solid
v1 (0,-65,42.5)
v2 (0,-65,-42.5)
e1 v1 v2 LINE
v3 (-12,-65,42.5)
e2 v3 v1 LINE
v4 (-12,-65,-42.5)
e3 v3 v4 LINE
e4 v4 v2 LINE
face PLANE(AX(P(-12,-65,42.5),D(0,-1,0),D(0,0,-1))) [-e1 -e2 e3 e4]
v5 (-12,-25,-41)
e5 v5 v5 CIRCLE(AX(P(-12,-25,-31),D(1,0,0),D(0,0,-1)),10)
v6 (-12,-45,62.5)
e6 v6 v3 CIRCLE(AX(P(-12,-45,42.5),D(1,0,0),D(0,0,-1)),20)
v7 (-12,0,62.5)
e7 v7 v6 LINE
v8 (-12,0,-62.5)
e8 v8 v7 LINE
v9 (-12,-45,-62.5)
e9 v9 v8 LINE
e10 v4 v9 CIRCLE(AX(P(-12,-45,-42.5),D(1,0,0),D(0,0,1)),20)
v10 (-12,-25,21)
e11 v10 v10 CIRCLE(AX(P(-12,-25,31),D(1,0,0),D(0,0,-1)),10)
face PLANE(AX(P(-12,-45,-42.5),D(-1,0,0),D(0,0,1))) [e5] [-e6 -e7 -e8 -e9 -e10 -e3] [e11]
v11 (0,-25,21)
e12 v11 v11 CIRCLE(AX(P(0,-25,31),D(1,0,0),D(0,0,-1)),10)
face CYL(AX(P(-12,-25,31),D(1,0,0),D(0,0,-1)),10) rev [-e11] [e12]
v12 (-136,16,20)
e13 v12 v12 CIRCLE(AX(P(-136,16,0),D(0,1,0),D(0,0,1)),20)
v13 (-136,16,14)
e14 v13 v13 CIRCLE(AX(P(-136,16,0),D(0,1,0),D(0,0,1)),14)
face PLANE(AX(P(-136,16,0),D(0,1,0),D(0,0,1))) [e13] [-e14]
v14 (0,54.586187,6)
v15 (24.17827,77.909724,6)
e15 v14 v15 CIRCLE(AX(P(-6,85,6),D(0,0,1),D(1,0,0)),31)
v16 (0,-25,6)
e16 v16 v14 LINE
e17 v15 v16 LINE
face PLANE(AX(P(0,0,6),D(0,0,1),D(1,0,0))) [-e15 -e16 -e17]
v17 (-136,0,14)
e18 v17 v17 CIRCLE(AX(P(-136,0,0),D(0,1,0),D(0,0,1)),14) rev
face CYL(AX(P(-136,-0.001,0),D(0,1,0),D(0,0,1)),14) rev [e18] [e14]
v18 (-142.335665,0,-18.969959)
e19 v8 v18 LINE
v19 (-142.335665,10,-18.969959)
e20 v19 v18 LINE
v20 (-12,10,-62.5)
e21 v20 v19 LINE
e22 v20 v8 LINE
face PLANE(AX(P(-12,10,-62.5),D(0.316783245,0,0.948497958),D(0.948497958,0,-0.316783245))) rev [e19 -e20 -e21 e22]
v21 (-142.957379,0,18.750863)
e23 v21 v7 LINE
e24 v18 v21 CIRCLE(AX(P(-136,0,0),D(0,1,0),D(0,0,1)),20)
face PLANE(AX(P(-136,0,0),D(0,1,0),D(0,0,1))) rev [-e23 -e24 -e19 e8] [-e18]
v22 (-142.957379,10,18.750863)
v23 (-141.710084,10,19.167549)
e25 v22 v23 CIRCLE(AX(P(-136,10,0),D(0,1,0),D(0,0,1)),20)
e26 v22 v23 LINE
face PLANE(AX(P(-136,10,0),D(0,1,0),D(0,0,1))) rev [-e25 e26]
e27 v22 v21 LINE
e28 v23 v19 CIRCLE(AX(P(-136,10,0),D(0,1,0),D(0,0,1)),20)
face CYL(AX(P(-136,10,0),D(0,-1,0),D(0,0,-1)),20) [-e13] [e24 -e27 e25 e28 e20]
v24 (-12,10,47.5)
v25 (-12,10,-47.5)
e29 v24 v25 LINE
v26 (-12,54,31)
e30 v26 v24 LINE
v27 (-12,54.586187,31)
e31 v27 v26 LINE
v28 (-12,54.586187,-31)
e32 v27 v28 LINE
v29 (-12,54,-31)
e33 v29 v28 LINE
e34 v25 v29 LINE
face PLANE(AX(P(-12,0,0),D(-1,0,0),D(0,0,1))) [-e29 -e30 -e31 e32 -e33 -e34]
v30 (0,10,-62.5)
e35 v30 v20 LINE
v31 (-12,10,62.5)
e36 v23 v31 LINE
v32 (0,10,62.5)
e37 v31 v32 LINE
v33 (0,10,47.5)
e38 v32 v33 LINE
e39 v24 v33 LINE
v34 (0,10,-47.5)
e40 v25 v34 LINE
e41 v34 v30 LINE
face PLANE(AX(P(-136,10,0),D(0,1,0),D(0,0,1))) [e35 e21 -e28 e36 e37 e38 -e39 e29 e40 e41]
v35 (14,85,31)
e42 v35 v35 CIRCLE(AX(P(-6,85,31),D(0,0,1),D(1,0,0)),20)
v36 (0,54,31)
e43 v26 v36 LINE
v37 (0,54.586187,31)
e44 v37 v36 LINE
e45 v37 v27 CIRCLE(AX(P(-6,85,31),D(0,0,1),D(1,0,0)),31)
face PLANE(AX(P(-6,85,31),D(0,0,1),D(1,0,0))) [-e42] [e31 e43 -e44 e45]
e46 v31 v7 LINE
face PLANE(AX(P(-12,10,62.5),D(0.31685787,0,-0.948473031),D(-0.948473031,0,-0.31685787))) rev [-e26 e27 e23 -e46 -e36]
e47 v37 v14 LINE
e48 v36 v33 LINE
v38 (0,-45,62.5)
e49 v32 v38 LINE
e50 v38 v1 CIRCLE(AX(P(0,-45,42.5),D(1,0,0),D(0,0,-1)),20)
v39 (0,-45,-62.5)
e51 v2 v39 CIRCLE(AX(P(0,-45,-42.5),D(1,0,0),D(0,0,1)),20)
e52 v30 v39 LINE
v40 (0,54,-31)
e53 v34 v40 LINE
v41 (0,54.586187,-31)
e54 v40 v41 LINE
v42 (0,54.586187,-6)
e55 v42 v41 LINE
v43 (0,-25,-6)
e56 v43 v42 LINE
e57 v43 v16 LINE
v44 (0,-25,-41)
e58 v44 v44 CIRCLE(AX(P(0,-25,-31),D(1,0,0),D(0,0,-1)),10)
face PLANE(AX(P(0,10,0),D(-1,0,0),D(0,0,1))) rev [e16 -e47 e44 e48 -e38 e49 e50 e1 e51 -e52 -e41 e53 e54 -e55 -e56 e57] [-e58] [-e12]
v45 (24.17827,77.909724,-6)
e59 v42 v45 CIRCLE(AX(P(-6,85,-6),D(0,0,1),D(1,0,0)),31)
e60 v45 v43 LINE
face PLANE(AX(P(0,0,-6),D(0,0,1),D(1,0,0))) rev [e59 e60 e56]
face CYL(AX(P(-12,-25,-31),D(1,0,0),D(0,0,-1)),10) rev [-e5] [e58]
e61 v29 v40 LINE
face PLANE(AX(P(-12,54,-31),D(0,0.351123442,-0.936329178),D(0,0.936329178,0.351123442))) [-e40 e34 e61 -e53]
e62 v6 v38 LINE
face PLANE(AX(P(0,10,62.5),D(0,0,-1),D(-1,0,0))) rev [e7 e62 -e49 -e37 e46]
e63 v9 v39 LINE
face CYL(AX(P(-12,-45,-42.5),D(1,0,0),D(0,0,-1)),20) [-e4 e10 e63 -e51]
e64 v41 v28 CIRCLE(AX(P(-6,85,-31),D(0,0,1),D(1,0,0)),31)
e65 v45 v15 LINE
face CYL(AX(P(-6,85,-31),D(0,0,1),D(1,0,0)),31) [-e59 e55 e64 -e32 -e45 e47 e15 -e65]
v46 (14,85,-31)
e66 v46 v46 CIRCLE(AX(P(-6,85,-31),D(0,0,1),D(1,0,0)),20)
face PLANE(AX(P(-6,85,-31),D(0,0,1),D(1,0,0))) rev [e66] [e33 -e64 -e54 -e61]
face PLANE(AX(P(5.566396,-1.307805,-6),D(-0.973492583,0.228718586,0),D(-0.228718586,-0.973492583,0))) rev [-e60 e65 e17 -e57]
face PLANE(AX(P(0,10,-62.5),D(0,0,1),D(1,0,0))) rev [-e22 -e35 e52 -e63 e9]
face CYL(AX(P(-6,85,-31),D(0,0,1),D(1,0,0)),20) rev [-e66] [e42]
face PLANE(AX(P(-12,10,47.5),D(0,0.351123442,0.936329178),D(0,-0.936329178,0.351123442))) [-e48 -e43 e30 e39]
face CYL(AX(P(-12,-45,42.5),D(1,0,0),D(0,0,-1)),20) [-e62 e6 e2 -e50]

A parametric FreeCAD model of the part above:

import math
import FreeCAD as App
import Part
import Sketcher

V = App.Vector

doc = App.newDocument("Part")
body = doc.addObject("PartDesign::Body", "Body")

# Sketch on XZ plane
sketch1 = body.newObject("Sketcher::SketchObject", "Sketch")
sketch1.AttachmentSupport = (doc.getObject("XZ_Plane"), [""])
sketch1.MapMode = "FlatFace"
sketch1.addGeometry([
    Part.LineSegment(V(-12, 62, 0), V(0, 62, 0)),  # 0
    Part.LineSegment(V(0, 62, 0), V(0, -62, 0)),  # 1
    Part.LineSegment(V(0, -62, 0), V(-12, -62, 0)),  # 2
    Part.LineSegment(V(-12, -62, 0), V(-142, -19, 0)),  # 3
    Part.ArcOfCircle(Part.Circle(V(-136, 0, 0), V(0, 0, 1), 20), math.radians(110), math.radians(252)),  # 4
    Part.LineSegment(V(-143, 19, 0), V(-12, 62, 0)),  # 5
], False)
sketch1.addConstraint([
    Sketcher.Constraint("Coincident", 0, 2, 1, 1),
    Sketcher.Constraint("Coincident", 1, 2, 2, 1),
    Sketcher.Constraint("Coincident", 2, 2, 3, 1),
    Sketcher.Constraint("Tangent", 3, 2, 4, 2),
    Sketcher.Constraint("Coincident", 4, 1, 5, 1),
    Sketcher.Constraint("Coincident", 5, 2, 0, 1),
    Sketcher.Constraint("Horizontal", 0),
    Sketcher.Constraint("Vertical", 1),
    Sketcher.Constraint("Horizontal", 2),
    Sketcher.Constraint("Symmetric", 0, 2, 1, 2, -1, 1),
    Sketcher.Constraint("PointOnObject", 4, 3, -1),
    Sketcher.Constraint("Vertical", 2, 2, 5, 2),
    Sketcher.Constraint("Radius", 4, 20.0),
    Sketcher.Constraint("DistanceX", 0, 1, 0, 2, 12.0),
    Sketcher.Constraint("DistanceY", 1, 2, 1, 1, 125.0),
    Sketcher.Constraint("DistanceX", 4, 3, -1, 1, 136.0),
    Sketcher.Constraint("Distance", 5, 138.071801),
])
pad1 = body.newObject("PartDesign::Pad", "Pad")
pad1.Profile = sketch1
pad1.Length = 10
pad1.Reversed = True

# Sketch on XZ plane
sketch2 = body.newObject("Sketcher::SketchObject", "Sketch001")
sketch2.AttachmentSupport = (doc.getObject("XZ_Plane"), [""])
sketch2.MapMode = "FlatFace"
sketch2.AttachmentOffset = App.Placement(V(0, 0, -10), App.Rotation())
sketch2.addGeometry(Part.Circle(V(-136, 0, 0), V(0, 0, 1), 20), False)
sketch2.addConstraint([
    Sketcher.Constraint("PointOnObject", 0, 3, -1),
    Sketcher.Constraint("Diameter", 0, 40.0),
    Sketcher.Constraint("DistanceX", 0, 3, -1, 1, 136.0),
])
pad2 = body.newObject("PartDesign::Pad", "Pad001")
pad2.Profile = sketch2
pad2.Length = 6
pad2.Reversed = True

# Sketch on XZ plane
sketch3 = body.newObject("Sketcher::SketchObject", "Sketch002")
sketch3.AttachmentSupport = (doc.getObject("XZ_Plane"), [""])
sketch3.MapMode = "FlatFace"
sketch3.AttachmentOffset = App.Placement(V(0, 0, -16), App.Rotation())
sketch3.addGeometry(Part.Circle(V(-136, 0, 0), V(0, 0, 1), 14), False)
sketch3.addConstraint([
    Sketcher.Constraint("PointOnObject", 0, 3, -1),
    Sketcher.Constraint("Diameter", 0, 28.0),
    Sketcher.Constraint("DistanceX", 0, 3, -1, 1, 136.0),
])
pocket1 = body.newObject("PartDesign::Pocket", "Pocket")
pocket1.Profile = sketch3
pocket1.Type = "UpToFirst"
pocket1.Reversed = True

# Sketch on YZ plane
sketch4 = body.newObject("Sketcher::SketchObject", "Sketch003")
sketch4.AttachmentSupport = (doc.getObject("YZ_Plane"), [""])
sketch4.MapMode = "FlatFace"
sketch4.addGeometry([
    Part.LineSegment(V(54, 31, 0), V(10, 48, 0)),  # 0
    Part.LineSegment(V(10, 48, 0), V(10, -48, 0)),  # 1
    Part.LineSegment(V(10, -48, 0), V(54, -31, 0)),  # 2
    Part.LineSegment(V(54, -31, 0), V(61, -31, 0)),  # 3
    Part.LineSegment(V(61, -31, 0), V(61, 31, 0)),  # 4
    Part.LineSegment(V(61, 31, 0), V(54, 31, 0)),  # 5
], False)
sketch4.addConstraint([
    Sketcher.Constraint("Coincident", 0, 2, 1, 1),
    Sketcher.Constraint("Coincident", 1, 2, 2, 1),
    Sketcher.Constraint("Coincident", 2, 2, 3, 1),
    Sketcher.Constraint("Coincident", 3, 2, 4, 1),
    Sketcher.Constraint("Coincident", 4, 2, 5, 1),
    Sketcher.Constraint("Coincident", 5, 2, 0, 1),
    Sketcher.Constraint("Vertical", 1),
    Sketcher.Constraint("Horizontal", 3),
    Sketcher.Constraint("Vertical", 4),
    Sketcher.Constraint("Horizontal", 5),
    Sketcher.Constraint("Symmetric", 2, 2, 5, 2, -1),
    Sketcher.Constraint("Equal", 0, 2),
    Sketcher.Constraint("DistanceY", 1, 2, 1, 1, 95.0),
    Sketcher.Constraint("DistanceY", 4, 1, 4, 2, 62.0),
    Sketcher.Constraint("DistanceX", -1, 1, 0, 2, 10.0),
    Sketcher.Constraint("DistanceX", -1, 1, 2, 2, 54.0),
    Sketcher.Constraint("DistanceX", 3, 1, 3, 2, 6.618294),
])
pad3 = body.newObject("PartDesign::Pad", "Pad002")
pad3.Profile = sketch4
pad3.Length = 12
pad3.Reversed = True

# Sketch on YZ plane
sketch5 = body.newObject("Sketcher::SketchObject", "Sketch004")
sketch5.AttachmentSupport = (doc.getObject("YZ_Plane"), [""])
sketch5.MapMode = "FlatFace"
sketch5.addGeometry([
    Part.LineSegment(V(0, 62, 0), V(-45, 62, 0)),  # 0
    Part.ArcOfCircle(Part.Circle(V(-45, 43, 0), V(0, 0, 1), 20), math.radians(90), math.radians(180)),  # 1
    Part.LineSegment(V(-65, 42, 0), V(-65, -42, 0)),  # 2
    Part.ArcOfCircle(Part.Circle(V(-45, -43, 0), V(0, 0, 1), 20), math.radians(180), math.radians(270)),  # 3
    Part.LineSegment(V(-45, -62, 0), V(0, -62, 0)),  # 4
    Part.LineSegment(V(0, -62, 0), V(0, 62, 0)),  # 5
    Part.Circle(V(-25, 31, 0), V(0, 0, 1), 10),  # 6
    Part.Circle(V(-25, -31, 0), V(0, 0, 1), 10),  # 7
], False)
sketch5.addConstraint([
    Sketcher.Constraint("Tangent", 0, 2, 1, 1),
    Sketcher.Constraint("Tangent", 1, 2, 2, 1),
    Sketcher.Constraint("Tangent", 2, 2, 3, 1),
    Sketcher.Constraint("Tangent", 3, 2, 4, 1),
    Sketcher.Constraint("Coincident", 4, 2, 5, 1),
    Sketcher.Constraint("Coincident", 5, 2, 0, 1),
    Sketcher.Constraint("Horizontal", 0),
    Sketcher.Constraint("Vertical", 2),
    Sketcher.Constraint("Horizontal", 4),
    Sketcher.Constraint("Vertical", 5),
    Sketcher.Constraint("Equal", 1, 3),
    Sketcher.Constraint("Equal", 6, 7),
    Sketcher.Constraint("Symmetric", 4, 2, 5, 2, -1, 1),
    Sketcher.Constraint("Symmetric", 6, 3, 7, 3, -1),
    Sketcher.Constraint("Diameter", 6, 20.0),
    Sketcher.Constraint("Radius", 1, 20.0),
    Sketcher.Constraint("DistanceX", 0, 2, 0, 1, 45.0),
    Sketcher.Constraint("DistanceY", 2, 2, 2, 1, 85.0),
    Sketcher.Constraint("DistanceX", 6, 3, -1, 1, 25.0),
    Sketcher.Constraint("DistanceY", -1, 1, 6, 3, 31.0),
])
pad4 = body.newObject("PartDesign::Pad", "Pad003")
pad4.Profile = sketch5
pad4.Length = 12
pad4.Reversed = True
body2 = doc.addObject("PartDesign::Body", "Body001")

# Sketch on XY plane
sketch6 = body2.newObject("Sketcher::SketchObject", "Sketch005")
sketch6.AttachmentSupport = (doc.getObject("XY_Plane001"), [""])
sketch6.MapMode = "FlatFace"
sketch6.addGeometry([
    Part.Circle(V(-6, 85, 0), V(0, 0, 1), 31),
    Part.Circle(V(-6, 85, 0), V(0, 0, 1), 20),
], False)
sketch6.addConstraint([
    Sketcher.Constraint("Coincident", 1, 3, 0, 3),
    Sketcher.Constraint("Diameter", 0, 62.0),
    Sketcher.Constraint("Diameter", 1, 40.0),
    Sketcher.Constraint("DistanceX", 0, 3, -1, 1, 6.0),
    Sketcher.Constraint("DistanceY", -1, 1, 0, 3, 85.0),
])
pad5 = body2.newObject("PartDesign::Pad", "Pad004")
pad5.Profile = sketch6
pad5.Type = "TwoLengths"
pad5.Length = 31
pad5.Length2 = 31
doc.recompute()

boolean = body.newObject("PartDesign::Boolean", "Boolean")
boolean.Type = "Fuse"
boolean.addObjects([body2])

# Sketch on XY plane
sketch7 = body.newObject("Sketcher::SketchObject", "Sketch006")
sketch7.AttachmentSupport = (doc.getObject("XY_Plane"), [""])
sketch7.MapMode = "FlatFace"
sketch7.addGeometry([
    Part.LineSegment(V(0, -25, 0), V(24, 78, 0)),
    Part.ArcOfCircle(Part.Circle(V(-6, 85, 0), V(0, 0, 1), 31), math.radians(-79), math.radians(-13)),
    Part.LineSegment(V(0, 55, 0), V(0, -25, 0)),
], False)
sketch7.addConstraint([
    Sketcher.Constraint("Tangent", 0, 2, 1, 2),
    Sketcher.Constraint("Coincident", 1, 1, 2, 1),
    Sketcher.Constraint("Coincident", 2, 2, 0, 1),
    Sketcher.Constraint("Vertical", 2),
    Sketcher.Constraint("PointOnObject", 1, 1, -2),
    Sketcher.Constraint("Radius", 1, 31.0),
    Sketcher.Constraint("DistanceX", 1, 3, -1, 1, 6.0),
    Sketcher.Constraint("DistanceY", -1, 1, 1, 3, 85.0),
    Sketcher.Constraint("DistanceY", 2, 2, -1, 1, 25.0),
])
pad6 = body.newObject("PartDesign::Pad", "Pad005")
pad6.Profile = sketch7
pad6.Type = "TwoLengths"
pad6.Length = 6
pad6.Length2 = 6

doc.recompute()
